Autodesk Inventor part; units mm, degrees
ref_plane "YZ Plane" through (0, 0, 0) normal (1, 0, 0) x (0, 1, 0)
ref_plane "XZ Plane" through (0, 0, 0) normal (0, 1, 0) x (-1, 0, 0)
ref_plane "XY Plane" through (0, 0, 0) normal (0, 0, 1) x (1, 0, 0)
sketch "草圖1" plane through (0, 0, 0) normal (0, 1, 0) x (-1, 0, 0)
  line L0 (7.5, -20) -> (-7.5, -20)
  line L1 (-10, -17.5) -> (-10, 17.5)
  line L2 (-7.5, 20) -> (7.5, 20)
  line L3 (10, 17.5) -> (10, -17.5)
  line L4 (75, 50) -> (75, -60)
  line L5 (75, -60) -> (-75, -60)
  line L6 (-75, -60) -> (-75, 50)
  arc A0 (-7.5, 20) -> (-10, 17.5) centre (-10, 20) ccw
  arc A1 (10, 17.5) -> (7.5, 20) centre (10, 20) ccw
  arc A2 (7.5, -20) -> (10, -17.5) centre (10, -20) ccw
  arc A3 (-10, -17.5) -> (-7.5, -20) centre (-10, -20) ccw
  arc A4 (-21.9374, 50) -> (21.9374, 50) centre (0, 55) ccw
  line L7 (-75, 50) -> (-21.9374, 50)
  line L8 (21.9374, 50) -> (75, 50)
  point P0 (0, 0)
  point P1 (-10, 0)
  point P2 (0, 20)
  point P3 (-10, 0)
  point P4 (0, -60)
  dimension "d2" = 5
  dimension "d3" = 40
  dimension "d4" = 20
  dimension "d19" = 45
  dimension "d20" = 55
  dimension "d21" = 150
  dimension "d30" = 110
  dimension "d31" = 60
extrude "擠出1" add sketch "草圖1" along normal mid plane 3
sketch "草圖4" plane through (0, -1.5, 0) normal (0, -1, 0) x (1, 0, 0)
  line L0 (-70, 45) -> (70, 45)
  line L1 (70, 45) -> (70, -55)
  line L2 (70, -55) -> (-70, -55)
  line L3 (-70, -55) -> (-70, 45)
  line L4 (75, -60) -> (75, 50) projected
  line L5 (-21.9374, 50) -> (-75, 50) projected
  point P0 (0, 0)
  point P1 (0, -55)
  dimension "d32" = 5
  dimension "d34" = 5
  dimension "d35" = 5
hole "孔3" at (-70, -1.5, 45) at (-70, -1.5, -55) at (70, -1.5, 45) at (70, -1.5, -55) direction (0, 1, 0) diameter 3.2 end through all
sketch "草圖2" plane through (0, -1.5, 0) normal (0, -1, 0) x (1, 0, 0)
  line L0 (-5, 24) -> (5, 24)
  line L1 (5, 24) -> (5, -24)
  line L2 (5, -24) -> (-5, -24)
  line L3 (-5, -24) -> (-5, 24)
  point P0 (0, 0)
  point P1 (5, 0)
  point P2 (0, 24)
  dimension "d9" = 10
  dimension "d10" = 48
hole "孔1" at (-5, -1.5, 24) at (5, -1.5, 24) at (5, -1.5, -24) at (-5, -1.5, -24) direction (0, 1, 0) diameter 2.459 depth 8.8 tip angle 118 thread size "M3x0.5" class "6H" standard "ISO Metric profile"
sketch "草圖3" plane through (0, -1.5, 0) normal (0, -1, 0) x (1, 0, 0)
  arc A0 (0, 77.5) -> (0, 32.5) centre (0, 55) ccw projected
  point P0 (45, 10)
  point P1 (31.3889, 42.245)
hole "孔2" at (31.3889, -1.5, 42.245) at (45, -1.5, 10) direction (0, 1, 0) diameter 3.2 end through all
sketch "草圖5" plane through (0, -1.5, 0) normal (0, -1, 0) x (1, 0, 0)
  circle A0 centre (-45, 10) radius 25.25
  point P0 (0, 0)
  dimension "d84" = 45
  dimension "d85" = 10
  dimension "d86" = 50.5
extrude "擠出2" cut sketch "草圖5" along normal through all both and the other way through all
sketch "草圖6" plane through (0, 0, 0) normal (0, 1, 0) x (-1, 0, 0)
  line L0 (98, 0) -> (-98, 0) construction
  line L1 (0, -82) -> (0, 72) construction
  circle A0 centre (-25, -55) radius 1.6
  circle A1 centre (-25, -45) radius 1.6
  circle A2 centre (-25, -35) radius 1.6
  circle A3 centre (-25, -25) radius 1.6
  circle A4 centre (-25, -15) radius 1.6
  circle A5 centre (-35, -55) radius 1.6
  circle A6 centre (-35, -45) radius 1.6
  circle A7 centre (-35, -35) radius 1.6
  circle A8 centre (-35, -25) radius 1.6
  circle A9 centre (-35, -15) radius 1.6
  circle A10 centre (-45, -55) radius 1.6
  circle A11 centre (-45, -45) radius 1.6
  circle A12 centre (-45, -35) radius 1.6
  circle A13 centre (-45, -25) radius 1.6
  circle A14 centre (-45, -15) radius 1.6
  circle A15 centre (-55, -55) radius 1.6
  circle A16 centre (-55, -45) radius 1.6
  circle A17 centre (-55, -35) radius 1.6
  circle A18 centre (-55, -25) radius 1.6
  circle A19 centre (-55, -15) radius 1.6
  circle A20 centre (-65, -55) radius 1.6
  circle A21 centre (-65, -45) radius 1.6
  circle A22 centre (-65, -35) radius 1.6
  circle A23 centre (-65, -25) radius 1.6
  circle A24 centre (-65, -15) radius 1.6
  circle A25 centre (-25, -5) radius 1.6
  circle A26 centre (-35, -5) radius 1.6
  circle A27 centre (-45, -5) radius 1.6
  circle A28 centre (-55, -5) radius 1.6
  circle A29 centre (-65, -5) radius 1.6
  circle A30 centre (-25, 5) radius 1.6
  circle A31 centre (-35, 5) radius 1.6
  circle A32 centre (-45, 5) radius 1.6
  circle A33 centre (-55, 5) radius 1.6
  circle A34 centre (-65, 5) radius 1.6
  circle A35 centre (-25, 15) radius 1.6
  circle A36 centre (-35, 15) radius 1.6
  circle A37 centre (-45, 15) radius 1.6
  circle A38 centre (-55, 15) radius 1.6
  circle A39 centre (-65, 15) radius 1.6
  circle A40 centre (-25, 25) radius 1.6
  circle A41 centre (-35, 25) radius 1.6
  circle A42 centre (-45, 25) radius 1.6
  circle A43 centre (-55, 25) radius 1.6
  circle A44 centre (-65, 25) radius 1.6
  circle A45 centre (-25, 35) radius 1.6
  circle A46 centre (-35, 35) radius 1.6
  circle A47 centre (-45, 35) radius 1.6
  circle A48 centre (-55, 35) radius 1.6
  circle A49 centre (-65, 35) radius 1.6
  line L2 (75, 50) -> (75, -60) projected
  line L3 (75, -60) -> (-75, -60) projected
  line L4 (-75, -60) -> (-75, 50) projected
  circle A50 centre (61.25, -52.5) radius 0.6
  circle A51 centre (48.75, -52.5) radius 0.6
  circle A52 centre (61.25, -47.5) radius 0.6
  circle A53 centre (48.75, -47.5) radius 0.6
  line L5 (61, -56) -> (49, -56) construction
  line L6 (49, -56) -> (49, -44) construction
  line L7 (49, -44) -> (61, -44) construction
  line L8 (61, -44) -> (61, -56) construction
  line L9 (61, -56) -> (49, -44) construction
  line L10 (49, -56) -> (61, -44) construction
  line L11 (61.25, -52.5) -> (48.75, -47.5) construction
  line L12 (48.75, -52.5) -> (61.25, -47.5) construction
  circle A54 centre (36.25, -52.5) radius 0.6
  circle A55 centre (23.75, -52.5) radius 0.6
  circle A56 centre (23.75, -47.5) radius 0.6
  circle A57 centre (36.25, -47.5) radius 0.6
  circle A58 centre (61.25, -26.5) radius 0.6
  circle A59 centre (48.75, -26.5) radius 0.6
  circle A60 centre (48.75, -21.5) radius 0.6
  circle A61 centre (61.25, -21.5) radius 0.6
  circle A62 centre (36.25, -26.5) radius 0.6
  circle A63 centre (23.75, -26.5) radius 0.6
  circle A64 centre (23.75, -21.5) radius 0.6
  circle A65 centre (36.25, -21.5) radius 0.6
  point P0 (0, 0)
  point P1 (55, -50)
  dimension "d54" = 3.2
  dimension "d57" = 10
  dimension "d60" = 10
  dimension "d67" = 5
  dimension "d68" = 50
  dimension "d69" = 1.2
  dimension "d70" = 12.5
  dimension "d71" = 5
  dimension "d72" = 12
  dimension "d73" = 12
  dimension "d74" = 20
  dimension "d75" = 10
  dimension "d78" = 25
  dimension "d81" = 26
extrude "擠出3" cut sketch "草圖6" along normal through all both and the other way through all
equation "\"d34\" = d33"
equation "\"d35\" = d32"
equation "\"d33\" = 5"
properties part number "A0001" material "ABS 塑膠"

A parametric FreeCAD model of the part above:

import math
import FreeCAD as App
import Part
import Sketcher
from FreeCAD import Vector
Q = App.Units.Quantity

doc = App.newDocument("Part")
body = doc.addObject("PartDesign::Body", "Body")

# Sketch on XZ plane
sketch1 = body.newObject("Sketcher::SketchObject", "Sketch")
sketch1.AttachmentSupport = (doc.getObject("XZ_Plane"), [""])
sketch1.MapMode = "FlatFace"
sketch1.addGeometry([
    Part.LineSegment(Vector(-75, -60, 0), Vector(-75, 50, 0)),  # 0
    Part.LineSegment(Vector(-75, 50, 0), Vector(-21.9, 50, 0)),  # 1
    Part.ArcOfCircle(Part.Circle(Vector(0, 55, 0), Vector(0, 0, 1), 22.5), math.radians(-167), math.radians(-13)),  # 2
    Part.LineSegment(Vector(21.9, 50, 0), Vector(75, 50, 0)),  # 3
    Part.LineSegment(Vector(75, 50, 0), Vector(75, -60, 0)),  # 4
    Part.LineSegment(Vector(75, -60, 0), Vector(-75, -60, 0)),  # 5
    Part.ArcOfCircle(Part.Circle(Vector(-10, -20, 0), Vector(0, 0, 1), 2.5), math.radians(90), math.radians(360)),  # 6
    Part.LineSegment(Vector(-7.5, -20, 0), Vector(7.5, -20, 0)),  # 7
    Part.ArcOfCircle(Part.Circle(Vector(10, -20, 0), Vector(0, 0, 1), 2.5), math.radians(180), math.radians(450)),  # 8
    Part.LineSegment(Vector(10, -17.5, 0), Vector(10, 17.5, 0)),  # 9
    Part.ArcOfCircle(Part.Circle(Vector(10, 20, 0), Vector(0, 0, 1), 2.5), math.radians(-90), math.radians(180)),  # 10
    Part.LineSegment(Vector(7.5, 20, 0), Vector(-7.5, 20, 0)),  # 11
    Part.ArcOfCircle(Part.Circle(Vector(-10, 20, 0), Vector(0, 0, 1), 2.5), math.radians(0), math.radians(270)),  # 12
    Part.LineSegment(Vector(-10, 17.5, 0), Vector(-10, -17.5, 0)),  # 13
], False)
sketch1.addConstraint([
    Sketcher.Constraint("Coincident", 0, 2, 1, 1),
    Sketcher.Constraint("Coincident", 1, 2, 2, 1),
    Sketcher.Constraint("Coincident", 2, 2, 3, 1),
    Sketcher.Constraint("Coincident", 3, 2, 4, 1),
    Sketcher.Constraint("Coincident", 4, 2, 5, 1),
    Sketcher.Constraint("Coincident", 5, 2, 0, 1),
    Sketcher.Constraint("Coincident", 6, 2, 7, 1),
    Sketcher.Constraint("Coincident", 7, 2, 8, 1),
    Sketcher.Constraint("Coincident", 8, 2, 9, 1),
    Sketcher.Constraint("Coincident", 9, 2, 10, 1),
    Sketcher.Constraint("Coincident", 10, 2, 11, 1),
    Sketcher.Constraint("Coincident", 11, 2, 12, 1),
    Sketcher.Constraint("Coincident", 12, 2, 13, 1),
    Sketcher.Constraint("Coincident", 13, 2, 6, 1),
    Sketcher.Constraint("Vertical", 0),
    Sketcher.Constraint("Horizontal", 1),
    Sketcher.Constraint("Horizontal", 3),
    Sketcher.Constraint("Vertical", 4),
    Sketcher.Constraint("Horizontal", 5),
    Sketcher.Constraint("Horizontal", 7),
    Sketcher.Constraint("Vertical", 9),
    Sketcher.Constraint("Horizontal", 11),
    Sketcher.Constraint("Vertical", 13),
    Sketcher.Constraint("Equal", 6, 8),
    Sketcher.Constraint("Equal", 8, 10),
    Sketcher.Constraint("Equal", 10, 12),
    Sketcher.Constraint("Symmetric", 6, 3, 10, 3, -1, 1),
    Sketcher.Constraint("Symmetric", 8, 3, 12, 3, -1, 1),
    Sketcher.Constraint("Symmetric", 6, 3, 8, 3, -2),
    Sketcher.Constraint("Symmetric", 1, 2, 2, 2, -2),
    Sketcher.Constraint("Horizontal", 8, 3, 6, 2),
    Sketcher.Constraint("Horizontal", 12, 3, 10, 2),
    Sketcher.Constraint("Vertical", 10, 3, 8, 2),
    Sketcher.Constraint("Vertical", 6, 3, 12, 2),
    Sketcher.Constraint("Equal", 1, 3),
    Sketcher.Constraint("Radius", 2, Q("22.5 mm")),
    Sketcher.Constraint("Radius", 6, Q("2.5 mm")),
    Sketcher.Constraint("DistanceX", 5, 2, 5, 1, Q("150 mm")),
    Sketcher.Constraint("DistanceY", 0, 1, 0, 2, Q("110 mm")),
    Sketcher.Constraint("DistanceY", -1, 1, 2, 3, Q("55 mm")),
    Sketcher.Constraint("DistanceY", 6, 3, -1, 1, Q("20 mm")),
    Sketcher.Constraint("DistanceY", 4, 2, -1, 1, Q("60 mm")),
    Sketcher.Constraint("DistanceX", 6, 3, 8, 3, Q("20 mm")),
])
pad1 = body.newObject("PartDesign::Pad", "Pad")
pad1.Profile = sketch1
pad1.Length = 3
pad1.Midplane = True

# Sketch on XZ plane
sketch2 = body.newObject("Sketcher::SketchObject", "Sketch001")
sketch2.AttachmentSupport = (doc.getObject("XZ_Plane"), [""])
sketch2.MapMode = "FlatFace"
sketch2.AttachmentOffset = App.Placement(Vector(0, 0, 1.5), App.Rotation())
sketch2.addGeometry([
    Part.Circle(Vector(-70, 45, 0), Vector(0, 0, 1), 1.6),
    Part.Circle(Vector(-70, -55, 0), Vector(0, 0, 1), 1.6),
    Part.Circle(Vector(70, 45, 0), Vector(0, 0, 1), 1.6),
    Part.Circle(Vector(70, -55, 0), Vector(0, 0, 1), 1.6),
], False)
sketch2.addConstraint([
    Sketcher.Constraint("Equal", 0, 1),
    Sketcher.Constraint("Equal", 1, 2),
    Sketcher.Constraint("Equal", 2, 3),
    Sketcher.Constraint("Symmetric", 0, 3, 2, 3, -2),
    Sketcher.Constraint("Symmetric", 1, 3, 3, 3, -2),
    Sketcher.Constraint("Vertical", 0, 3, 1, 3),
    Sketcher.Constraint("Diameter", 0, Q("3.2 mm")),
    Sketcher.Constraint("DistanceX", 0, 3, -1, 1, Q("70 mm")),
    Sketcher.Constraint("DistanceY", -1, 1, 0, 3, Q("45 mm")),
    Sketcher.Constraint("DistanceY", 1, 3, -1, 1, Q("55 mm")),
])
doc.recompute()
hole = body.newObject("PartDesign::Hole", "Hole")
hole.Profile = sketch2
hole.ThreadType = "None"
hole.Diameter = 3.2
hole.DepthType = "ThroughAll"

# Sketch on XZ plane
sketch3 = body.newObject("Sketcher::SketchObject", "Sketch002")
sketch3.AttachmentSupport = (doc.getObject("XZ_Plane"), [""])
sketch3.MapMode = "FlatFace"
sketch3.AttachmentOffset = App.Placement(Vector(0, 0, 1.5), App.Rotation())
sketch3.addGeometry([
    Part.Circle(Vector(-5, 24, 0), Vector(0, 0, 1), 1.2),
    Part.Circle(Vector(5, 24, 0), Vector(0, 0, 1), 1.2),
    Part.Circle(Vector(5, -24, 0), Vector(0, 0, 1), 1.2),
    Part.Circle(Vector(-5, -24, 0), Vector(0, 0, 1), 1.2),
], False)
sketch3.addConstraint([
    Sketcher.Constraint("Equal", 0, 1),
    Sketcher.Constraint("Equal", 1, 2),
    Sketcher.Constraint("Equal", 2, 3),
    Sketcher.Constraint("Symmetric", 0, 3, 2, 3, -1, 1),
    Sketcher.Constraint("Symmetric", 1, 3, 3, 3, -1, 1),
    Sketcher.Constraint("Symmetric", 0, 3, 1, 3, -2),
    Sketcher.Constraint("Diameter", 0, Q("2.459 mm")),
    Sketcher.Constraint("DistanceX", 0, 3, -1, 1, Q("5 mm")),
    Sketcher.Constraint("DistanceY", -1, 1, 0, 3, Q("24 mm")),
])
doc.recompute()
hole2 = body.newObject("PartDesign::Hole", "Hole001")
hole2.Profile = sketch3
hole2.ThreadType = "None"
hole2.Diameter = 2.459
hole2.DepthType = "Dimension"
hole2.Depth = 8.8
hole2.DrillPoint = "Angled"
hole2.DrillPointAngle = 118

# Sketch on XZ plane
sketch4 = body.newObject("Sketcher::SketchObject", "Sketch003")
sketch4.AttachmentSupport = (doc.getObject("XZ_Plane"), [""])
sketch4.MapMode = "FlatFace"
sketch4.AttachmentOffset = App.Placement(Vector(0, 0, 1.5), App.Rotation())
sketch4.addGeometry([
    Part.Circle(Vector(31.4, 42.2, 0), Vector(0, 0, 1), 1.6),
    Part.Circle(Vector(45, 10, 0), Vector(0, 0, 1), 1.6),
], False)
sketch4.addConstraint([
    Sketcher.Constraint("Equal", 0, 1),
    Sketcher.Constraint("Diameter", 0, Q("3.2 mm")),
    Sketcher.Constraint("DistanceX", -1, 1, 1, 3, Q("45 mm")),
    Sketcher.Constraint("DistanceY", -1, 1, 1, 3, Q("10 mm")),
    Sketcher.Constraint("DistanceX", -1, 1, 0, 3, Q("31.389 mm")),
    Sketcher.Constraint("DistanceY", -1, 1, 0, 3, Q("42.245 mm")),
])
doc.recompute()
hole3 = body.newObject("PartDesign::Hole", "Hole002")
hole3.Profile = sketch4
hole3.ThreadType = "None"
hole3.Diameter = 3.2
hole3.DepthType = "ThroughAll"

# Sketch on XZ plane
sketch5 = body.newObject("Sketcher::SketchObject", "Sketch004")
sketch5.AttachmentSupport = (doc.getObject("XZ_Plane"), [""])
sketch5.MapMode = "FlatFace"
sketch5.AttachmentOffset = App.Placement(Vector(0, 0, 1.5), App.Rotation())
sketch5.addGeometry(Part.Circle(Vector(-45, 10, 0), Vector(0, 0, 1), 25), False)
sketch5.addConstraint([
    Sketcher.Constraint("Diameter", 0, Q("50.5 mm")),
    Sketcher.Constraint("DistanceX", 0, 3, -1, 1, Q("45 mm")),
    Sketcher.Constraint("DistanceY", -1, 1, 0, 3, Q("10 mm")),
])
pocket1 = body.newObject("PartDesign::Pocket", "Pocket")
pocket1.Profile = sketch5
pocket1.Type = "ThroughAll"
pocket1.Midplane = True

# Sketch on XZ plane
sketch6 = body.newObject("Sketcher::SketchObject", "Sketch005")
sketch6.AttachmentSupport = (doc.getObject("XZ_Plane"), [""])
sketch6.MapMode = "FlatFace"
sketch6.addGeometry([
    Part.Circle(Vector(25, -55, 0), Vector(0, 0, 1), 1.6),  # 0
    Part.Circle(Vector(25, -45, 0), Vector(0, 0, 1), 1.6),  # 1
    Part.Circle(Vector(25, -35, 0), Vector(0, 0, 1), 1.6),  # 2
    Part.Circle(Vector(25, -25, 0), Vector(0, 0, 1), 1.6),  # 3
    Part.Circle(Vector(25, -15, 0), Vector(0, 0, 1), 1.6),  # 4
    Part.Circle(Vector(35, -55, 0), Vector(0, 0, 1), 1.6),  # 5
    Part.Circle(Vector(35, -45, 0), Vector(0, 0, 1), 1.6),  # 6
    Part.Circle(Vector(35, -35, 0), Vector(0, 0, 1), 1.6),  # 7
    Part.Circle(Vector(35, -25, 0), Vector(0, 0, 1), 1.6),  # 8
    Part.Circle(Vector(35, -15, 0), Vector(0, 0, 1), 1.6),  # 9
    Part.Circle(Vector(45, -55, 0), Vector(0, 0, 1), 1.6),  # 10
    Part.Circle(Vector(45, -45, 0), Vector(0, 0, 1), 1.6),  # 11
    Part.Circle(Vector(45, -35, 0), Vector(0, 0, 1), 1.6),  # 12
    Part.Circle(Vector(45, -25, 0), Vector(0, 0, 1), 1.6),  # 13
    Part.Circle(Vector(45, -15, 0), Vector(0, 0, 1), 1.6),  # 14
    Part.Circle(Vector(55, -55, 0), Vector(0, 0, 1), 1.6),  # 15
    Part.Circle(Vector(55, -45, 0), Vector(0, 0, 1), 1.6),  # 16
    Part.Circle(Vector(55, -35, 0), Vector(0, 0, 1), 1.6),  # 17
    Part.Circle(Vector(55, -25, 0), Vector(0, 0, 1), 1.6),  # 18
    Part.Circle(Vector(55, -15, 0), Vector(0, 0, 1), 1.6),  # 19
    Part.Circle(Vector(65, -55, 0), Vector(0, 0, 1), 1.6),  # 20
    Part.Circle(Vector(65, -45, 0), Vector(0, 0, 1), 1.6),  # 21
    Part.Circle(Vector(65, -35, 0), Vector(0, 0, 1), 1.6),  # 22
    Part.Circle(Vector(65, -25, 0), Vector(0, 0, 1), 1.6),  # 23
    Part.Circle(Vector(65, -15, 0), Vector(0, 0, 1), 1.6),  # 24
    Part.Circle(Vector(25, -5, 0), Vector(0, 0, 1), 1.6),  # 25
    Part.Circle(Vector(35, -5, 0), Vector(0, 0, 1), 1.6),  # 26
    Part.Circle(Vector(45, -5, 0), Vector(0, 0, 1), 1.6),  # 27
    Part.Circle(Vector(55, -5, 0), Vector(0, 0, 1), 1.6),  # 28
    Part.Circle(Vector(65, -5, 0), Vector(0, 0, 1), 1.6),  # 29
    Part.Circle(Vector(25, 5, 0), Vector(0, 0, 1), 1.6),  # 30
    Part.Circle(Vector(35, 5, 0), Vector(0, 0, 1), 1.6),  # 31
    Part.Circle(Vector(45, 5, 0), Vector(0, 0, 1), 1.6),  # 32
    Part.Circle(Vector(55, 5, 0), Vector(0, 0, 1), 1.6),  # 33
    Part.Circle(Vector(65, 5, 0), Vector(0, 0, 1), 1.6),  # 34
    Part.Circle(Vector(25, 15, 0), Vector(0, 0, 1), 1.6),  # 35
    Part.Circle(Vector(35, 15, 0), Vector(0, 0, 1), 1.6),  # 36
    Part.Circle(Vector(45, 15, 0), Vector(0, 0, 1), 1.6),  # 37
    Part.Circle(Vector(55, 15, 0), Vector(0, 0, 1), 1.6),  # 38
    Part.Circle(Vector(65, 15, 0), Vector(0, 0, 1), 1.6),  # 39
    Part.Circle(Vector(25, 25, 0), Vector(0, 0, 1), 1.6),  # 40
    Part.Circle(Vector(35, 25, 0), Vector(0, 0, 1), 1.6),  # 41
    Part.Circle(Vector(45, 25, 0), Vector(0, 0, 1), 1.6),  # 42
    Part.Circle(Vector(55, 25, 0), Vector(0, 0, 1), 1.6),  # 43
    Part.Circle(Vector(65, 25, 0), Vector(0, 0, 1), 1.6),  # 44
    Part.Circle(Vector(25, 35, 0), Vector(0, 0, 1), 1.6),  # 45
    Part.Circle(Vector(35, 35, 0), Vector(0, 0, 1), 1.6),  # 46
    Part.Circle(Vector(45, 35, 0), Vector(0, 0, 1), 1.6),  # 47
    Part.Circle(Vector(55, 35, 0), Vector(0, 0, 1), 1.6),  # 48
    Part.Circle(Vector(65, 35, 0), Vector(0, 0, 1), 1.6),  # 49
    Part.Circle(Vector(-61.2, -52.5, 0), Vector(0, 0, 1), 0.6),  # 50
    Part.Circle(Vector(-48.8, -52.5, 0), Vector(0, 0, 1), 0.6),  # 51
    Part.Circle(Vector(-61.2, -47.5, 0), Vector(0, 0, 1), 0.6),  # 52
    Part.Circle(Vector(-48.8, -47.5, 0), Vector(0, 0, 1), 0.6),  # 53
    Part.Circle(Vector(-36.2, -52.5, 0), Vector(0, 0, 1), 0.6),  # 54
    Part.Circle(Vector(-23.8, -52.5, 0), Vector(0, 0, 1), 0.6),  # 55
    Part.Circle(Vector(-23.8, -47.5, 0), Vector(0, 0, 1), 0.6),  # 56
    Part.Circle(Vector(-36.2, -47.5, 0), Vector(0, 0, 1), 0.6),  # 57
    Part.Circle(Vector(-61.2, -26.5, 0), Vector(0, 0, 1), 0.6),  # 58
    Part.Circle(Vector(-48.8, -26.5, 0), Vector(0, 0, 1), 0.6),  # 59
    Part.Circle(Vector(-48.8, -21.5, 0), Vector(0, 0, 1), 0.6),  # 60
    Part.Circle(Vector(-61.2, -21.5, 0), Vector(0, 0, 1), 0.6),  # 61
    Part.Circle(Vector(-36.2, -26.5, 0), Vector(0, 0, 1), 0.6),  # 62
    Part.Circle(Vector(-23.8, -26.5, 0), Vector(0, 0, 1), 0.6),  # 63
    Part.Circle(Vector(-23.8, -21.5, 0), Vector(0, 0, 1), 0.6),  # 64
    Part.Circle(Vector(-36.2, -21.5, 0), Vector(0, 0, 1), 0.6),  # 65
], False)
sketch6.addConstraint([
    Sketcher.Constraint("Equal", 0, 1),
    Sketcher.Constraint("Equal", 1, 2),
    Sketcher.Constraint("Equal", 2, 3),
    Sketcher.Constraint("Equal", 3, 4),
    Sketcher.Constraint("Equal", 4, 5),
    Sketcher.Constraint("Equal", 5, 6),
    Sketcher.Constraint("Equal", 6, 7),
    Sketcher.Constraint("Equal", 7, 8),
    Sketcher.Constraint("Equal", 8, 9),
    Sketcher.Constraint("Equal", 9, 10),
    Sketcher.Constraint("Equal", 10, 11),
    Sketcher.Constraint("Equal", 11, 12),
    Sketcher.Constraint("Equal", 12, 13),
    Sketcher.Constraint("Equal", 13, 14),
    Sketcher.Constraint("Equal", 14, 15),
    Sketcher.Constraint("Equal", 15, 16),
    Sketcher.Constraint("Equal", 16, 17),
    Sketcher.Constraint("Equal", 17, 18),
    Sketcher.Constraint("Equal", 18, 19),
    Sketcher.Constraint("Equal", 19, 20),
    Sketcher.Constraint("Equal", 20, 21),
    Sketcher.Constraint("Equal", 21, 22),
    Sketcher.Constraint("Equal", 22, 23),
    Sketcher.Constraint("Equal", 23, 24),
    Sketcher.Constraint("Equal", 24, 25),
    Sketcher.Constraint("Equal", 25, 26),
    Sketcher.Constraint("Equal", 26, 27),
    Sketcher.Constraint("Equal", 27, 28),
    Sketcher.Constraint("Equal", 28, 29),
    Sketcher.Constraint("Equal", 29, 30),
    Sketcher.Constraint("Equal", 30, 31),
    Sketcher.Constraint("Equal", 31, 32),
    Sketcher.Constraint("Equal", 32, 33),
    Sketcher.Constraint("Equal", 33, 34),
    Sketcher.Constraint("Equal", 34, 35),
    Sketcher.Constraint("Equal", 35, 36),
    Sketcher.Constraint("Equal", 36, 37),
    Sketcher.Constraint("Equal", 37, 38),
    Sketcher.Constraint("Equal", 38, 39),
    Sketcher.Constraint("Equal", 39, 40),
    Sketcher.Constraint("Equal", 40, 41),
    Sketcher.Constraint("Equal", 41, 42),
    Sketcher.Constraint("Equal", 42, 43),
    Sketcher.Constraint("Equal", 43, 44),
    Sketcher.Constraint("Equal", 44, 45),
    Sketcher.Constraint("Equal", 45, 46),
    Sketcher.Constraint("Equal", 46, 47),
    Sketcher.Constraint("Equal", 47, 48),
    Sketcher.Constraint("Equal", 48, 49),
    Sketcher.Constraint("Equal", 50, 51),
    Sketcher.Constraint("Equal", 51, 52),
    Sketcher.Constraint("Equal", 52, 53),
    Sketcher.Constraint("Equal", 53, 54),
    Sketcher.Constraint("Equal", 54, 55),
    Sketcher.Constraint("Equal", 55, 56),
    Sketcher.Constraint("Equal", 56, 57),
    Sketcher.Constraint("Equal", 57, 58),
    Sketcher.Constraint("Equal", 58, 59),
    Sketcher.Constraint("Equal", 59, 60),
    Sketcher.Constraint("Equal", 60, 61),
    Sketcher.Constraint("Equal", 61, 62),
    Sketcher.Constraint("Equal", 62, 63),
    Sketcher.Constraint("Equal", 63, 64),
    Sketcher.Constraint("Equal", 64, 65),
    Sketcher.Constraint("Symmetric", 25, 3, 30, 3, -1),
    Sketcher.Constraint("Symmetric", 26, 3, 31, 3, -1),
    Sketcher.Constraint("Symmetric", 27, 3, 32, 3, -1),
    Sketcher.Constraint("Symmetric", 28, 3, 33, 3, -1),
    Sketcher.Constraint("Symmetric", 29, 3, 34, 3, -1),
    Sketcher.Constraint("Symmetric", 4, 3, 35, 3, -1),
    Sketcher.Constraint("Symmetric", 9, 3, 36, 3, -1),
    Sketcher.Constraint("Symmetric", 14, 3, 37, 3, -1),
    Sketcher.Constraint("Symmetric", 19, 3, 38, 3, -1),
    Sketcher.Constraint("Symmetric", 24, 3, 39, 3, -1),
    Sketcher.Constraint("Symmetric", 3, 3, 40, 3, -1),
    Sketcher.Constraint("Symmetric", 8, 3, 41, 3, -1),
    Sketcher.Constraint("Symmetric", 13, 3, 42, 3, -1),
    Sketcher.Constraint("Symmetric", 18, 3, 43, 3, -1),
    Sketcher.Constraint("Symmetric", 23, 3, 44, 3, -1),
    Sketcher.Constraint("Symmetric", 2, 3, 45, 3, -1),
    Sketcher.Constraint("Symmetric", 7, 3, 46, 3, -1),
    Sketcher.Constraint("Symmetric", 12, 3, 47, 3, -1),
    Sketcher.Constraint("Symmetric", 17, 3, 48, 3, -1),
    Sketcher.Constraint("Symmetric", 22, 3, 49, 3, -1),
    Sketcher.Constraint("Horizontal", 0, 3, 5, 3),
    Sketcher.Constraint("Horizontal", 1, 3, 6, 3),
    Sketcher.Constraint("Horizontal", 2, 3, 7, 3),
    Sketcher.Constraint("Horizontal", 3, 3, 8, 3),
    Sketcher.Constraint("Horizontal", 4, 3, 9, 3),
    Sketcher.Constraint("Horizontal", 5, 3, 10, 3),
    Sketcher.Constraint("Horizontal", 6, 3, 11, 3),
    Sketcher.Constraint("Horizontal", 7, 3, 12, 3),
    Sketcher.Constraint("Horizontal", 8, 3, 13, 3),
    Sketcher.Constraint("Horizontal", 9, 3, 14, 3),
    Sketcher.Constraint("Horizontal", 10, 3, 15, 3),
    Sketcher.Constraint("Horizontal", 11, 3, 16, 3),
    Sketcher.Constraint("Horizontal", 12, 3, 17, 3),
    Sketcher.Constraint("Horizontal", 13, 3, 18, 3),
    Sketcher.Constraint("Horizontal", 14, 3, 19, 3),
    Sketcher.Constraint("Horizontal", 15, 3, 20, 3),
    Sketcher.Constraint("Horizontal", 16, 3, 21, 3),
    Sketcher.Constraint("Horizontal", 17, 3, 22, 3),
    Sketcher.Constraint("Horizontal", 18, 3, 23, 3),
    Sketcher.Constraint("Horizontal", 19, 3, 24, 3),
    Sketcher.Constraint("Horizontal", 25, 3, 26, 3),
    Sketcher.Constraint("Horizontal", 26, 3, 27, 3),
    Sketcher.Constraint("Horizontal", 27, 3, 28, 3),
    Sketcher.Constraint("Horizontal", 28, 3, 29, 3),
    Sketcher.Constraint("Horizontal", 50, 3, 51, 3),
    Sketcher.Constraint("Horizontal", 52, 3, 53, 3),
    Sketcher.Constraint("Horizontal", 51, 3, 54, 3),
    Sketcher.Constraint("Horizontal", 54, 3, 55, 3),
    Sketcher.Constraint("Horizontal", 53, 3, 56, 3),
    Sketcher.Constraint("Horizontal", 56, 3, 57, 3),
    Sketcher.Constraint("Horizontal", 58, 3, 59, 3),
    Sketcher.Constraint("Horizontal", 60, 3, 61, 3),
    Sketcher.Constraint("Horizontal", 59, 3, 62, 3),
    Sketcher.Constraint("Horizontal", 62, 3, 63, 3),
    Sketcher.Constraint("Horizontal", 61, 3, 64, 3),
    Sketcher.Constraint("Horizontal", 64, 3, 65, 3),
    Sketcher.Constraint("Vertical", 0, 3, 1, 3),
    Sketcher.Constraint("Vertical", 1, 3, 2, 3),
    Sketcher.Constraint("Vertical", 2, 3, 3, 3),
    Sketcher.Constraint("Vertical", 3, 3, 4, 3),
    Sketcher.Constraint("Vertical", 5, 3, 6, 3),
    Sketcher.Constraint("Vertical", 6, 3, 7, 3),
    Sketcher.Constraint("Vertical", 7, 3, 8, 3),
    Sketcher.Constraint("Vertical", 8, 3, 9, 3),
    Sketcher.Constraint("Vertical", 10, 3, 11, 3),
    Sketcher.Constraint("Vertical", 11, 3, 12, 3),
    Sketcher.Constraint("Vertical", 12, 3, 13, 3),
    Sketcher.Constraint("Vertical", 13, 3, 14, 3),
    Sketcher.Constraint("Vertical", 15, 3, 16, 3),
    Sketcher.Constraint("Vertical", 16, 3, 17, 3),
    Sketcher.Constraint("Vertical", 17, 3, 18, 3),
    Sketcher.Constraint("Vertical", 18, 3, 19, 3),
    Sketcher.Constraint("Vertical", 20, 3, 21, 3),
    Sketcher.Constraint("Vertical", 21, 3, 22, 3),
    Sketcher.Constraint("Vertical", 22, 3, 23, 3),
    Sketcher.Constraint("Vertical", 23, 3, 24, 3),
    Sketcher.Constraint("Vertical", 4, 3, 25, 3),
    Sketcher.Constraint("Vertical", 9, 3, 26, 3),
    Sketcher.Constraint("Vertical", 14, 3, 27, 3),
    Sketcher.Constraint("Vertical", 19, 3, 28, 3),
    Sketcher.Constraint("Vertical", 24, 3, 29, 3),
    Sketcher.Constraint("Vertical", 50, 3, 52, 3),
    Sketcher.Constraint("Vertical", 51, 3, 53, 3),
    Sketcher.Constraint("Vertical", 55, 3, 56, 3),
    Sketcher.Constraint("Vertical", 54, 3, 57, 3),
    Sketcher.Constraint("Vertical", 52, 3, 58, 3),
    Sketcher.Constraint("Vertical", 53, 3, 59, 3),
    Sketcher.Constraint("Vertical", 59, 3, 60, 3),
    Sketcher.Constraint("Vertical", 58, 3, 61, 3),
    Sketcher.Constraint("Vertical", 57, 3, 62, 3),
    Sketcher.Constraint("Vertical", 56, 3, 63, 3),
    Sketcher.Constraint("Vertical", 63, 3, 64, 3),
    Sketcher.Constraint("Vertical", 62, 3, 65, 3),
    Sketcher.Constraint("Diameter", 0, Q("3.2 mm")),
    Sketcher.Constraint("Diameter", 50, Q("1.2 mm")),
    Sketcher.Constraint("DistanceX", -1, 1, 0, 3, Q("25 mm")),
    Sketcher.Constraint("DistanceY", 3, 3, -1, 1, Q("25 mm")),
    Sketcher.Constraint("DistanceY", 25, 3, -1, 1, Q("5 mm")),
    Sketcher.Constraint("DistanceY", 0, 3, -1, 1, Q("55 mm")),
    Sketcher.Constraint("DistanceY", 1, 3, -1, 1, Q("45 mm")),
    Sketcher.Constraint("DistanceY", 2, 3, -1, 1, Q("35 mm")),
    Sketcher.Constraint("DistanceY", 4, 3, -1, 1, Q("15 mm")),
    Sketcher.Constraint("DistanceX", -1, 1, 5, 3, Q("35 mm")),
    Sketcher.Constraint("DistanceX", -1, 1, 10, 3, Q("45 mm")),
    Sketcher.Constraint("DistanceX", -1, 1, 15, 3, Q("55 mm")),
    Sketcher.Constraint("DistanceX", -1, 1, 20, 3, Q("65 mm")),
    Sketcher.Constraint("DistanceY", 50, 3, -1, 1, Q("52.5 mm")),
    Sketcher.Constraint("DistanceY", 52, 3, -1, 1, Q("47.5 mm")),
    Sketcher.Constraint("DistanceY", 58, 3, -1, 1, Q("26.5 mm")),
    Sketcher.Constraint("DistanceY", 60, 3, -1, 1, Q("21.5 mm")),
    Sketcher.Constraint("DistanceX", 50, 3, -1, 1, Q("61.25 mm")),
    Sketcher.Constraint("DistanceX", 51, 3, -1, 1, Q("48.75 mm")),
    Sketcher.Constraint("DistanceX", 54, 3, -1, 1, Q("36.25 mm")),
    Sketcher.Constraint("DistanceX", 55, 3, -1, 1, Q("23.75 mm")),
])
pocket2 = body.newObject("PartDesign::Pocket", "Pocket001")
pocket2.Profile = sketch6
pocket2.Type = "ThroughAll"
pocket2.Midplane = True

doc.recompute()
